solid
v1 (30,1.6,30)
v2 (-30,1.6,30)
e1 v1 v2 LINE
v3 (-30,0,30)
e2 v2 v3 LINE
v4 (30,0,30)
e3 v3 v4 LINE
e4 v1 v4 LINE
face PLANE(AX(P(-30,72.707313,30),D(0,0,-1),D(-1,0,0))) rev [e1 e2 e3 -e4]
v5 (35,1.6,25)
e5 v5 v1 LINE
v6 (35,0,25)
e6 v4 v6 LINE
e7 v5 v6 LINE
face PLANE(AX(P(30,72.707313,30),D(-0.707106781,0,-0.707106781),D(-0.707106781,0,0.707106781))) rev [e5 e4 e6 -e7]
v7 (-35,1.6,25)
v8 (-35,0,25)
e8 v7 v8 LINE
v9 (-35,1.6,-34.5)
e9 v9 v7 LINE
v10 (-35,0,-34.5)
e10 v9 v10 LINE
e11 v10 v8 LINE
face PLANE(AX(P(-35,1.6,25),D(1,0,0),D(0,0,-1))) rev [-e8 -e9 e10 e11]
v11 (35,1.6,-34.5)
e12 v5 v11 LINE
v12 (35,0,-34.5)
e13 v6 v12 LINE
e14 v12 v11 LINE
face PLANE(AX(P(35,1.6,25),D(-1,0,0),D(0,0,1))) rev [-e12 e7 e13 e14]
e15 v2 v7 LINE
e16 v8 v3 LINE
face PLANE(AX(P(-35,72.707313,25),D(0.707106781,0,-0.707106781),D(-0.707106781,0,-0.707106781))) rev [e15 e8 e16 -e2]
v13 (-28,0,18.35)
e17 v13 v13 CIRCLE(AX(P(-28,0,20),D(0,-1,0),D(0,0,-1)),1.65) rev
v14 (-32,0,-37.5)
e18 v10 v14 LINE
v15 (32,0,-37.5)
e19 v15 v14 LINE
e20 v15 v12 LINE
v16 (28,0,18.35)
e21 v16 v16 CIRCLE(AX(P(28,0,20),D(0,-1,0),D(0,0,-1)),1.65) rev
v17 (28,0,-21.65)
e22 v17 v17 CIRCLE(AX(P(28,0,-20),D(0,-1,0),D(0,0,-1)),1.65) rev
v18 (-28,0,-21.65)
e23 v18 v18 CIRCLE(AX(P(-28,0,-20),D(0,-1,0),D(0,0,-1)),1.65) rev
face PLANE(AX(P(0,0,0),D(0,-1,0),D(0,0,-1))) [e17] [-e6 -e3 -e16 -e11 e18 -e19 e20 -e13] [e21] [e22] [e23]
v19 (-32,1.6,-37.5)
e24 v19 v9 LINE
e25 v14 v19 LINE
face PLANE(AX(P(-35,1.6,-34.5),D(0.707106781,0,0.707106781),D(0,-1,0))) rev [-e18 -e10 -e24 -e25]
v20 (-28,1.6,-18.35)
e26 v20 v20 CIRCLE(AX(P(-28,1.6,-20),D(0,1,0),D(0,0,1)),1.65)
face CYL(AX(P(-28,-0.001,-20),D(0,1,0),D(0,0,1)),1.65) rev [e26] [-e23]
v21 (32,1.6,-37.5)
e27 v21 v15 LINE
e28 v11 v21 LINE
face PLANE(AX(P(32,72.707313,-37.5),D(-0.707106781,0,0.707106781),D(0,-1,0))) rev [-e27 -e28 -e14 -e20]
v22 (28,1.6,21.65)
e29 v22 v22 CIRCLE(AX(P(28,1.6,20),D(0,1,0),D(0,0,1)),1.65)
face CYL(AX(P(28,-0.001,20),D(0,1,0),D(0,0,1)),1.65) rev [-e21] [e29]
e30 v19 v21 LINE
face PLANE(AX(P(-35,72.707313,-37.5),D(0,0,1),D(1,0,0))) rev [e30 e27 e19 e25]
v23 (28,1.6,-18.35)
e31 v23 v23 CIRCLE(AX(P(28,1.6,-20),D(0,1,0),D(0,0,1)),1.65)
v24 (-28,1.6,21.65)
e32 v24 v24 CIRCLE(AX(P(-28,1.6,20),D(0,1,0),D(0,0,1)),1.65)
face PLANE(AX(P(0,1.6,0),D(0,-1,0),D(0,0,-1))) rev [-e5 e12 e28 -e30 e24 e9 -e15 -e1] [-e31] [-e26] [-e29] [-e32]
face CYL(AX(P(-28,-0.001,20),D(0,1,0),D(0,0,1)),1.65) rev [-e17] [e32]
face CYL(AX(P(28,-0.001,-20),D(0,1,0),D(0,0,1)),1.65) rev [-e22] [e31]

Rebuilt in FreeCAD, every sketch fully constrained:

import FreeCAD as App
import Part
import Sketcher
Q = App.Units.Quantity


def edges_at(feature, points):
    """Names of the edges that pass closest to the given points."""
    edges = feature.Shape.Edges
    near = lambda p: min(range(len(edges)), key=lambda i: edges[i].distToShape(Part.Vertex(*p))[0])
    return sorted({f"Edge{near(p) + 1}" for p in points})

doc = App.newDocument("Part")
body = doc.addObject("PartDesign::Body", "Body")

# Sketch on XZ plane
sketch1 = doc.addObject("Sketcher::SketchObject", "Sketch")
body.addObject(sketch1)
sketch1.AttachmentSupport = (doc.XZ_Plane, [""])
sketch1.MapMode = "FlatFace"
sketch1.addGeometry([
    Part.LineSegment(App.Vector(-35, -25, 0), App.Vector(-35, 25, 0)),
    Part.LineSegment(App.Vector(-35, 25, 0), App.Vector(35, 25, 0)),
    Part.LineSegment(App.Vector(35, 25, 0), App.Vector(35, -25, 0)),
    Part.LineSegment(App.Vector(35, -25, 0), App.Vector(-35, -25, 0)),
], False)
sketch1.addConstraint([
    Sketcher.Constraint("Coincident", 0, 2, 1, 1),
    Sketcher.Constraint("Coincident", 1, 2, 2, 1),
    Sketcher.Constraint("Coincident", 2, 2, 3, 1),
    Sketcher.Constraint("Coincident", 3, 2, 0, 1),
    Sketcher.Constraint("Vertical", 0),
    Sketcher.Constraint("Horizontal", 1),
    Sketcher.Constraint("Vertical", 2),
    Sketcher.Constraint("Horizontal", 3),
    Sketcher.Constraint("Symmetric", 0, 2, 2, 2, -1, 1),
    Sketcher.Constraint("DistanceX", 1, 1, 1, 2, Q("70 mm")),
    Sketcher.Constraint("DistanceY", 0, 1, 0, 2, Q("50 mm")),
])
pad1 = doc.addObject("PartDesign::Pad", "Pad")
body.addObject(pad1)
pad1.Profile = sketch1
pad1.Length = 1.6
pad1.Reversed = True

# Sketch on XZ plane
sketch2 = doc.addObject("Sketcher::SketchObject", "Sketch001")
body.addObject(sketch2)
sketch2.AttachmentSupport = (doc.XZ_Plane, [""])
sketch2.MapMode = "FlatFace"
sketch2.AttachmentOffset = App.Placement(App.Vector(0, 0, -1.6), App.Rotation())
sketch2.addGeometry(Part.Circle(App.Vector(-28, -20, 0), App.Vector(0, 0, 1), 1.6), False)
sketch2.addConstraint([
    Sketcher.Constraint("Diameter", 0, Q("3.3 mm")),
    Sketcher.Constraint("DistanceX", 0, 3, -1, 1, Q("28 mm")),
    Sketcher.Constraint("DistanceY", 0, 3, -1, 1, Q("20 mm")),
])
pocket1 = doc.addObject("PartDesign::Pocket", "Pocket")
body.addObject(pocket1)
pocket1.Profile = sketch2
pocket1.Type = "UpToFirst"
pocket1.Reversed = True

# Sketch on XZ plane
sketch3 = doc.addObject("Sketcher::SketchObject", "Sketch002")
body.addObject(sketch3)
sketch3.AttachmentSupport = (doc.XZ_Plane, [""])
sketch3.MapMode = "FlatFace"
sketch3.AttachmentOffset = App.Placement(App.Vector(0, 0, -1.6), App.Rotation())
sketch3.addGeometry(Part.Circle(App.Vector(-28, 20, 0), App.Vector(0, 0, 1), 1.6), False)
sketch3.addConstraint([
    Sketcher.Constraint("Diameter", 0, Q("3.3 mm")),
    Sketcher.Constraint("DistanceX", 0, 3, -1, 1, Q("28 mm")),
    Sketcher.Constraint("DistanceY", -1, 1, 0, 3, Q("20 mm")),
])
pocket2 = doc.addObject("PartDesign::Pocket", "Pocket001")
body.addObject(pocket2)
pocket2.Profile = sketch3
pocket2.Type = "UpToFirst"
pocket2.Reversed = True

# Sketch on XZ plane
sketch4 = doc.addObject("Sketcher::SketchObject", "Sketch003")
body.addObject(sketch4)
sketch4.AttachmentSupport = (doc.XZ_Plane, [""])
sketch4.MapMode = "FlatFace"
sketch4.AttachmentOffset = App.Placement(App.Vector(0, 0, -1.6), App.Rotation())
sketch4.addGeometry(Part.Circle(App.Vector(28, 20, 0), App.Vector(0, 0, 1), 1.6), False)
sketch4.addConstraint([
    Sketcher.Constraint("Diameter", 0, Q("3.3 mm")),
    Sketcher.Constraint("DistanceX", -1, 1, 0, 3, Q("28 mm")),
    Sketcher.Constraint("DistanceY", -1, 1, 0, 3, Q("20 mm")),
])
pocket3 = doc.addObject("PartDesign::Pocket", "Pocket002")
body.addObject(pocket3)
pocket3.Profile = sketch4
pocket3.Type = "UpToFirst"
pocket3.Reversed = True

# Sketch on XZ plane
sketch5 = doc.addObject("Sketcher::SketchObject", "Sketch004")
body.addObject(sketch5)
sketch5.AttachmentSupport = (doc.XZ_Plane, [""])
sketch5.MapMode = "FlatFace"
sketch5.AttachmentOffset = App.Placement(App.Vector(0, 0, -1.6), App.Rotation())
sketch5.addGeometry(Part.Circle(App.Vector(28, -20, 0), App.Vector(0, 0, 1), 1.6), False)
sketch5.addConstraint([
    Sketcher.Constraint("Diameter", 0, Q("3.3 mm")),
    Sketcher.Constraint("DistanceX", -1, 1, 0, 3, Q("28 mm")),
    Sketcher.Constraint("DistanceY", 0, 3, -1, 1, Q("20 mm")),
])
pocket4 = doc.addObject("PartDesign::Pocket", "Pocket003")
body.addObject(pocket4)
pocket4.Profile = sketch5
pocket4.Type = "UpToFirst"
pocket4.Reversed = True

# Sketch on XZ plane
sketch6 = doc.addObject("Sketcher::SketchObject", "Sketch005")
body.addObject(sketch6)
sketch6.AttachmentSupport = (doc.XZ_Plane, [""])
sketch6.MapMode = "FlatFace"
sketch6.addGeometry([
    Part.LineSegment(App.Vector(-35, 25, 0), App.Vector(-30, 30, 0)),  # 0
    Part.LineSegment(App.Vector(-30, 30, 0), App.Vector(30, 30, 0)),  # 1
    Part.LineSegment(App.Vector(30, 30, 0), App.Vector(35, 25, 0)),  # 2
    Part.LineSegment(App.Vector(35, 25, 0), App.Vector(-35, 25, 0)),  # 3
    Part.LineSegment(App.Vector(-35, -38, 0), App.Vector(-35, -25, 0)),  # 4
    Part.LineSegment(App.Vector(-35, -25, 0), App.Vector(35, -25, 0)),  # 5
    Part.LineSegment(App.Vector(35, -25, 0), App.Vector(35, -38, 0)),  # 6
    Part.LineSegment(App.Vector(35, -38, 0), App.Vector(-35, -38, 0)),  # 7
], False)
sketch6.addConstraint([
    Sketcher.Constraint("Coincident", 0, 2, 1, 1),
    Sketcher.Constraint("Coincident", 1, 2, 2, 1),
    Sketcher.Constraint("Coincident", 2, 2, 3, 1),
    Sketcher.Constraint("Coincident", 3, 2, 0, 1),
    Sketcher.Constraint("Coincident", 4, 2, 5, 1),
    Sketcher.Constraint("Coincident", 5, 2, 6, 1),
    Sketcher.Constraint("Coincident", 6, 2, 7, 1),
    Sketcher.Constraint("Coincident", 7, 2, 4, 1),
    Sketcher.Constraint("Horizontal", 1),
    Sketcher.Constraint("Horizontal", 3),
    Sketcher.Constraint("Vertical", 4),
    Sketcher.Constraint("Horizontal", 5),
    Sketcher.Constraint("Vertical", 6),
    Sketcher.Constraint("Horizontal", 7),
    Sketcher.Constraint("Symmetric", 2, 2, 4, 2, -1, 1),
    Sketcher.Constraint("Perpendicular", 0, 2),
    Sketcher.Constraint("Vertical", 3, 2, 4, 2),
    Sketcher.Constraint("Vertical", 2, 2, 5, 2),
    Sketcher.Constraint("Equal", 0, 2),
    Sketcher.Constraint("DistanceX", 1, 1, 1, 2, Q("60 mm")),
    Sketcher.Constraint("DistanceX", 3, 2, 3, 1, Q("70 mm")),
    Sketcher.Constraint("DistanceY", 4, 1, 4, 2, Q("12.5 mm")),
    Sketcher.Constraint("DistanceY", -1, 1, 0, 2, Q("30 mm")),
])
pad2 = doc.addObject("PartDesign::Pad", "Pad001")
body.addObject(pad2)
pad2.Profile = sketch6
pad2.Length = 1.6
pad2.Reversed = True
doc.recompute()

chamfer = doc.addObject("PartDesign::Chamfer", "Chamfer")
body.addObject(chamfer)
chamfer.Base = (pad2, edges_at(pad2, [(35, 0.8, -37.5), (-35, 0.8, -37.5)]))
chamfer.Size = 3

doc.recompute()
